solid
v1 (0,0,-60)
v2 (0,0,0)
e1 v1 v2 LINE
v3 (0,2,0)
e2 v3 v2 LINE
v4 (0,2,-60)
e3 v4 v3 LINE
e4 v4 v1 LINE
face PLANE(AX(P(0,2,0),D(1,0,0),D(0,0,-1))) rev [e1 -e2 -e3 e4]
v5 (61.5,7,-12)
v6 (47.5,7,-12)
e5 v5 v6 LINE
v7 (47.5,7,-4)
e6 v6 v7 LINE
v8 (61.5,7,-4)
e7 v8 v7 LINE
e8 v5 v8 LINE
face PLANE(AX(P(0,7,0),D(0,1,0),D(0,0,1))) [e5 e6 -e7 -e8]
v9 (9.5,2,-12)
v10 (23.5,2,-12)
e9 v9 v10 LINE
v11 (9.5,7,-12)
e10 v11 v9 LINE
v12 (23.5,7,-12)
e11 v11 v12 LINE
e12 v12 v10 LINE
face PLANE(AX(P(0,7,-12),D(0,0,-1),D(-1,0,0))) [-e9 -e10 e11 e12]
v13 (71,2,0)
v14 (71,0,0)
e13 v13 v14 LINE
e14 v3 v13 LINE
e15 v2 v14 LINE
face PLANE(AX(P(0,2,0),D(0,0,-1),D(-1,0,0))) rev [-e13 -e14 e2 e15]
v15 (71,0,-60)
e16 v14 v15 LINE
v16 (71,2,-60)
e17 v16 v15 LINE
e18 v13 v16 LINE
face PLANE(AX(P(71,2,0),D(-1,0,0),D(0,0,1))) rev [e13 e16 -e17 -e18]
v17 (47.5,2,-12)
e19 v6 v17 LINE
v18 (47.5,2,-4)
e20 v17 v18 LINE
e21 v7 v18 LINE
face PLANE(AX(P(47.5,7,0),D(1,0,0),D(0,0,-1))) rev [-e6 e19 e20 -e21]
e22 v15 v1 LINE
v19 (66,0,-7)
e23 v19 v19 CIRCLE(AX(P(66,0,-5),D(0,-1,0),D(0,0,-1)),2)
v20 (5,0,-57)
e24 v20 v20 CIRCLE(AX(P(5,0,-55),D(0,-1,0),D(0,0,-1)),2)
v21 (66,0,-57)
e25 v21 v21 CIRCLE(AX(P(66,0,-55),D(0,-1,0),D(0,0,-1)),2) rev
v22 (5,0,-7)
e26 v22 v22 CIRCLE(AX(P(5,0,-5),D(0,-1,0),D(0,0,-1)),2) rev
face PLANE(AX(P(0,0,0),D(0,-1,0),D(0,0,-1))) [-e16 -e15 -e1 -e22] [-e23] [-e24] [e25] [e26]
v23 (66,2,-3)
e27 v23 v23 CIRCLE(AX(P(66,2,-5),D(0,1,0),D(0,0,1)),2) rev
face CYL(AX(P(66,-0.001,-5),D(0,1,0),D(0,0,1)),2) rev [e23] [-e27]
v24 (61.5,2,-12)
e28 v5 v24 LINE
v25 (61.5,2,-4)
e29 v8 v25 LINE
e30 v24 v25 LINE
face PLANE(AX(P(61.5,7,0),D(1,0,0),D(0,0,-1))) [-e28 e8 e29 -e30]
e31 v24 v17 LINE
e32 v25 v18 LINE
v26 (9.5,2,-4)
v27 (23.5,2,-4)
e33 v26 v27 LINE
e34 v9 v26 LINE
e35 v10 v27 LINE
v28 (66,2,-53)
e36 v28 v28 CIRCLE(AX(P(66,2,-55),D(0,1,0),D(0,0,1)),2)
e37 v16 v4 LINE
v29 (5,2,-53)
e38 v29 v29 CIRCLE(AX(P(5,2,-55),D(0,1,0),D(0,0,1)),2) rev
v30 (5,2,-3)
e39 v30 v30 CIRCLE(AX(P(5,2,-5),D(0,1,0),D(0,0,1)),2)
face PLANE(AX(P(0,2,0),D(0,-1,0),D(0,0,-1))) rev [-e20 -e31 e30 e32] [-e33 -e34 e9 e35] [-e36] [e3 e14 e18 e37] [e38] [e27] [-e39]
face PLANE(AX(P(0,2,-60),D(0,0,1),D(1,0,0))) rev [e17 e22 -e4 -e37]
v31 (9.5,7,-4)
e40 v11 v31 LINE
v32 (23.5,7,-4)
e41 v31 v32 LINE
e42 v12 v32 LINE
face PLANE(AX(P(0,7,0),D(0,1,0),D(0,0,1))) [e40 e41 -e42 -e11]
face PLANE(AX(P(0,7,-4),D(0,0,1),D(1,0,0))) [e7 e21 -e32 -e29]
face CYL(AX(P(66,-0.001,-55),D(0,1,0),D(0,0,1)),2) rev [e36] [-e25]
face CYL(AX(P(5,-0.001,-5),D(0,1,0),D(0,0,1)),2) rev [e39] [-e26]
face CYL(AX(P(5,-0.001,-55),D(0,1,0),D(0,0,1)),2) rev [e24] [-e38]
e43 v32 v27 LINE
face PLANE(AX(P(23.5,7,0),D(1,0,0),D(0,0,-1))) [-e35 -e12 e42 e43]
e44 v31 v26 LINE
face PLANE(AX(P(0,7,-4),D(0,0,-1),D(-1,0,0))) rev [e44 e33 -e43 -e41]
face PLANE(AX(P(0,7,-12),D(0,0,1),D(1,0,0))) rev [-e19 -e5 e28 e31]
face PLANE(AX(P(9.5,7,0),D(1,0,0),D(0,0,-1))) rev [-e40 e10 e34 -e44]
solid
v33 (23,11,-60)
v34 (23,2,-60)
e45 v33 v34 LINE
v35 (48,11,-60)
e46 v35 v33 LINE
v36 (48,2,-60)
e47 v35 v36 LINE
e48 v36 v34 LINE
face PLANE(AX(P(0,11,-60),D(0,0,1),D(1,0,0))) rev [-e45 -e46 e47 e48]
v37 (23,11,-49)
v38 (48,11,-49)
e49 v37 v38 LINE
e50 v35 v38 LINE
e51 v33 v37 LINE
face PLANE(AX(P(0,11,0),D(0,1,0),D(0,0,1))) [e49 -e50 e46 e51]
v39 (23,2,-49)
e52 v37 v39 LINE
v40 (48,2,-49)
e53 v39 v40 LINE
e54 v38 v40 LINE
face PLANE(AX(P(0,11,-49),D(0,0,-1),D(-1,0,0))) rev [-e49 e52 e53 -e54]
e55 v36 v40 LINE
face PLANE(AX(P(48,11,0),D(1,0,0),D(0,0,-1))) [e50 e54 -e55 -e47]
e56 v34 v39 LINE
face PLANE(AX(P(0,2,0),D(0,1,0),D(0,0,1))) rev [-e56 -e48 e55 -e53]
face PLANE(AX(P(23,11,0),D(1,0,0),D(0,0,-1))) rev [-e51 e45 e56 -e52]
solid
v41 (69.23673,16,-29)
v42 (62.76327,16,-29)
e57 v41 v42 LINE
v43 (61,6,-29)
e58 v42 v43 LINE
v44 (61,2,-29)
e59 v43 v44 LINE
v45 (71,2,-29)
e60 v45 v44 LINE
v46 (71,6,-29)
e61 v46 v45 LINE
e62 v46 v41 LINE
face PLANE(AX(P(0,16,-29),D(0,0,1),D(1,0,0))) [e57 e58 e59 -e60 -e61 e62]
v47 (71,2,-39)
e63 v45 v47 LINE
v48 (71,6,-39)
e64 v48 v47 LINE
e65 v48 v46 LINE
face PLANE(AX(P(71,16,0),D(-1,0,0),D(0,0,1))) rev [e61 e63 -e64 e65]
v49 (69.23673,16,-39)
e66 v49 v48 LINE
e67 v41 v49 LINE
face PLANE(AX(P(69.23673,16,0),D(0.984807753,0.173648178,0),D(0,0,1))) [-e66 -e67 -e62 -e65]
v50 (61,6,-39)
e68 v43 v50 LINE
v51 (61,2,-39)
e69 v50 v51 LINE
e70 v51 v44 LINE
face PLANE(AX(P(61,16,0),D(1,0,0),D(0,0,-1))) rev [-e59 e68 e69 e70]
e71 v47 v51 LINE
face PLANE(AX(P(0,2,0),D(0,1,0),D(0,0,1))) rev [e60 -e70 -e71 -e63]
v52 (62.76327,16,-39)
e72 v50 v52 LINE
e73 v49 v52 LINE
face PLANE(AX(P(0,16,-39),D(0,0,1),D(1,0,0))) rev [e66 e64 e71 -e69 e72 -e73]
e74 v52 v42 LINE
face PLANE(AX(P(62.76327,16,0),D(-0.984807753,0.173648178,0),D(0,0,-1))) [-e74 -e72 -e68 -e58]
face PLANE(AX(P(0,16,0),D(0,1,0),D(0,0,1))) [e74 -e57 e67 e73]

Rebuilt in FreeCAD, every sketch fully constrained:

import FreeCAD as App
import Part
import Sketcher

V = App.Vector
Q = App.Units.Quantity


def edges_at(feature, points):
    """Names of the edges that pass closest to the given points."""
    edges = feature.Shape.Edges
    near = lambda p: min(range(len(edges)), key=lambda i: edges[i].distToShape(Part.Vertex(*p))[0])
    return sorted({f"Edge{near(p) + 1}" for p in points})

doc = App.newDocument("Part")
body = doc.addObject("PartDesign::Body", "Body")

sketch1 = body.newObject("Sketcher::SketchObject", "Sketch")
sketch1.AttachmentSupport = (doc.getObject("XZ_Plane"), [""])
sketch1.MapMode = "FlatFace"
sketch1.addGeometry([
    Part.LineSegment(V(0, -60, 0), V(0, 0, 0)),
    Part.LineSegment(V(0, 0, 0), V(71, 0, 0)),
    Part.LineSegment(V(71, 0, 0), V(71, -60, 0)),
    Part.LineSegment(V(71, -60, 0), V(0, -60, 0)),
], False)
sketch1.addConstraint([
    Sketcher.Constraint("Coincident", 0, 2, 1, 1),
    Sketcher.Constraint("Coincident", 1, 2, 2, 1),
    Sketcher.Constraint("Coincident", 2, 2, 3, 1),
    Sketcher.Constraint("Coincident", 3, 2, 0, 1),
    Sketcher.Constraint("Vertical", 0),
    Sketcher.Constraint("Horizontal", 1),
    Sketcher.Constraint("Vertical", 2),
    Sketcher.Constraint("Horizontal", 3),
    Sketcher.Constraint("Coincident", 0, 2, -1, 1),
    Sketcher.Constraint("DistanceX", 1, 1, 1, 2, Q("71 mm")),
    Sketcher.Constraint("DistanceY", 0, 1, 0, 2, Q("60 mm")),
])
pad1 = body.newObject("PartDesign::Pad", "Pad")
pad1.Profile = sketch1
pad1.Length = 2
pad1.Reversed = True

sketch2 = body.newObject("Sketcher::SketchObject", "Sketch001")
sketch2.AttachmentSupport = (doc.getObject("XZ_Plane"), [""])
sketch2.MapMode = "FlatFace"
sketch2.AttachmentOffset = App.Placement(V(0, 0, -2), App.Rotation())
sketch2.addGeometry([
    Part.Circle(V(5, -55, 0), V(0, 0, 1), 2),
    Part.Circle(V(5, -5, 0), V(0, 0, 1), 2),
    Part.Circle(V(66, -5, 0), V(0, 0, 1), 2),
    Part.Circle(V(66, -55, 0), V(0, 0, 1), 2),
], False)
sketch2.addConstraint([
    Sketcher.Constraint("Equal", 0, 1),
    Sketcher.Constraint("Equal", 1, 2),
    Sketcher.Constraint("Equal", 2, 3),
    Sketcher.Constraint("Horizontal", 1, 3, 2, 3),
    Sketcher.Constraint("Horizontal", 0, 3, 3, 3),
    Sketcher.Constraint("Vertical", 0, 3, 1, 3),
    Sketcher.Constraint("Vertical", 2, 3, 3, 3),
    Sketcher.Constraint("Diameter", 0, Q("4 mm")),
    Sketcher.Constraint("DistanceX", -1, 1, 0, 3, Q("5 mm")),
    Sketcher.Constraint("DistanceY", 0, 3, -1, 1, Q("55 mm")),
    Sketcher.Constraint("DistanceY", 1, 3, -1, 1, Q("5 mm")),
    Sketcher.Constraint("DistanceX", -1, 1, 2, 3, Q("66 mm")),
])
pocket1 = body.newObject("PartDesign::Pocket", "Pocket")
pocket1.Profile = sketch2
pocket1.Length = 2
pocket1.Reversed = True

sketch3 = body.newObject("Sketcher::SketchObject", "Sketch002")
sketch3.AttachmentSupport = (doc.getObject("XZ_Plane"), [""])
sketch3.MapMode = "FlatFace"
sketch3.AttachmentOffset = App.Placement(V(0, 0, -2), App.Rotation())
sketch3.addGeometry([
    Part.LineSegment(V(9.5, -12, 0), V(9.5, -4, 0)),
    Part.LineSegment(V(9.5, -4, 0), V(23.5, -4, 0)),
    Part.LineSegment(V(23.5, -4, 0), V(23.5, -12, 0)),
    Part.LineSegment(V(23.5, -12, 0), V(9.5, -12, 0)),
    Part.LineSegment(V(47.5, -12, 0), V(47.5, -4, 0)),
    Part.LineSegment(V(47.5, -4, 0), V(61.5, -4, 0)),
    Part.LineSegment(V(61.5, -4, 0), V(61.5, -12, 0)),
    Part.LineSegment(V(61.5, -12, 0), V(47.5, -12, 0)),
], False)
sketch3.addConstraint([
    Sketcher.Constraint("Coincident", 0, 2, 1, 1),
    Sketcher.Constraint("Coincident", 1, 2, 2, 1),
    Sketcher.Constraint("Coincident", 2, 2, 3, 1),
    Sketcher.Constraint("Coincident", 3, 2, 0, 1),
    Sketcher.Constraint("Coincident", 4, 2, 5, 1),
    Sketcher.Constraint("Coincident", 5, 2, 6, 1),
    Sketcher.Constraint("Coincident", 6, 2, 7, 1),
    Sketcher.Constraint("Coincident", 7, 2, 4, 1),
    Sketcher.Constraint("Vertical", 0),
    Sketcher.Constraint("Horizontal", 1),
    Sketcher.Constraint("Vertical", 2),
    Sketcher.Constraint("Horizontal", 3),
    Sketcher.Constraint("Vertical", 4),
    Sketcher.Constraint("Horizontal", 5),
    Sketcher.Constraint("Vertical", 6),
    Sketcher.Constraint("Horizontal", 7),
    Sketcher.Constraint("Horizontal", 1, 2, 4, 2),
    Sketcher.Constraint("Horizontal", 3, 2, 6, 2),
    Sketcher.Constraint("Equal", 3, 5),
    Sketcher.Constraint("DistanceX", 1, 1, 1, 2, Q("14 mm")),
    Sketcher.Constraint("DistanceY", 0, 1, 0, 2, Q("8 mm")),
    Sketcher.Constraint("DistanceY", 0, 2, -1, 1, Q("4 mm")),
    Sketcher.Constraint("DistanceX", 1, 2, 4, 2, Q("24 mm")),
    Sketcher.Constraint("DistanceX", -1, 1, 0, 2, Q("9.5 mm")),
])
pad2 = body.newObject("PartDesign::Pad", "Pad001")
pad2.Profile = sketch3
pad2.Length = 5
pad2.Reversed = True
body2 = doc.addObject("PartDesign::Body", "Body001")

sketch4 = body2.newObject("Sketcher::SketchObject", "Sketch003")
sketch4.AttachmentSupport = (doc.getObject("XZ_Plane001"), [""])
sketch4.MapMode = "FlatFace"
sketch4.AttachmentOffset = App.Placement(V(0, 0, -2), App.Rotation())
sketch4.addGeometry([
    Part.LineSegment(V(23, -60, 0), V(23, -49, 0)),
    Part.LineSegment(V(23, -49, 0), V(48, -49, 0)),
    Part.LineSegment(V(48, -49, 0), V(48, -60, 0)),
    Part.LineSegment(V(48, -60, 0), V(23, -60, 0)),
], False)
sketch4.addConstraint([
    Sketcher.Constraint("Coincident", 0, 2, 1, 1),
    Sketcher.Constraint("Coincident", 1, 2, 2, 1),
    Sketcher.Constraint("Coincident", 2, 2, 3, 1),
    Sketcher.Constraint("Coincident", 3, 2, 0, 1),
    Sketcher.Constraint("Vertical", 0),
    Sketcher.Constraint("Horizontal", 1),
    Sketcher.Constraint("Vertical", 2),
    Sketcher.Constraint("Horizontal", 3),
    Sketcher.Constraint("DistanceX", 1, 1, 1, 2, Q("25 mm")),
    Sketcher.Constraint("DistanceY", 0, 1, 0, 2, Q("11 mm")),
    Sketcher.Constraint("DistanceX", -1, 1, 0, 2, Q("23 mm")),
    Sketcher.Constraint("DistanceY", 0, 2, -1, 1, Q("49 mm")),
])
pad3 = body2.newObject("PartDesign::Pad", "Pad002")
pad3.Profile = sketch4
pad3.Length = 9
pad3.Reversed = True
body3 = doc.addObject("PartDesign::Body", "Body002")

sketch5 = body3.newObject("Sketcher::SketchObject", "Sketch004")
sketch5.AttachmentSupport = (doc.getObject("XZ_Plane002"), [""])
sketch5.MapMode = "FlatFace"
sketch5.AttachmentOffset = App.Placement(V(0, 0, -2), App.Rotation())
sketch5.addGeometry([
    Part.LineSegment(V(61, -39, 0), V(61, -29, 0)),
    Part.LineSegment(V(61, -29, 0), V(71, -29, 0)),
    Part.LineSegment(V(71, -29, 0), V(71, -39, 0)),
    Part.LineSegment(V(71, -39, 0), V(61, -39, 0)),
], False)
sketch5.addConstraint([
    Sketcher.Constraint("Coincident", 0, 2, 1, 1),
    Sketcher.Constraint("Coincident", 1, 2, 2, 1),
    Sketcher.Constraint("Coincident", 2, 2, 3, 1),
    Sketcher.Constraint("Coincident", 3, 2, 0, 1),
    Sketcher.Constraint("Vertical", 0),
    Sketcher.Constraint("Horizontal", 1),
    Sketcher.Constraint("Vertical", 2),
    Sketcher.Constraint("Horizontal", 3),
    Sketcher.Constraint("Equal", 3, 0),
    Sketcher.Constraint("DistanceX", 1, 1, 1, 2, Q("10 mm")),
    Sketcher.Constraint("DistanceX", -1, 1, 0, 2, Q("61 mm")),
    Sketcher.Constraint("DistanceY", 0, 2, -1, 1, Q("29 mm")),
])
pad4 = body3.newObject("PartDesign::Pad", "Pad003")
pad4.Profile = sketch5
pad4.Length = 14
pad4.Reversed = True
doc.recompute()

chamfer = body3.newObject("PartDesign::Chamfer", "Chamfer")
chamfer.Base = (pad4, edges_at(pad4, [(71, 16, -34)]))
chamfer.ChamferType = "Two distances"
chamfer.Size = 10
chamfer.Size2 = 1.76327
doc.recompute()

chamfer2 = body3.newObject("PartDesign::Chamfer", "Chamfer001")
chamfer2.Base = (chamfer, edges_at(chamfer, [(61, 16, -34)]))
chamfer2.ChamferType = "Two distances"
chamfer2.Size = 10
chamfer2.Size2 = 1.76327
chamfer2.FlipDirection = True

doc.recompute()
